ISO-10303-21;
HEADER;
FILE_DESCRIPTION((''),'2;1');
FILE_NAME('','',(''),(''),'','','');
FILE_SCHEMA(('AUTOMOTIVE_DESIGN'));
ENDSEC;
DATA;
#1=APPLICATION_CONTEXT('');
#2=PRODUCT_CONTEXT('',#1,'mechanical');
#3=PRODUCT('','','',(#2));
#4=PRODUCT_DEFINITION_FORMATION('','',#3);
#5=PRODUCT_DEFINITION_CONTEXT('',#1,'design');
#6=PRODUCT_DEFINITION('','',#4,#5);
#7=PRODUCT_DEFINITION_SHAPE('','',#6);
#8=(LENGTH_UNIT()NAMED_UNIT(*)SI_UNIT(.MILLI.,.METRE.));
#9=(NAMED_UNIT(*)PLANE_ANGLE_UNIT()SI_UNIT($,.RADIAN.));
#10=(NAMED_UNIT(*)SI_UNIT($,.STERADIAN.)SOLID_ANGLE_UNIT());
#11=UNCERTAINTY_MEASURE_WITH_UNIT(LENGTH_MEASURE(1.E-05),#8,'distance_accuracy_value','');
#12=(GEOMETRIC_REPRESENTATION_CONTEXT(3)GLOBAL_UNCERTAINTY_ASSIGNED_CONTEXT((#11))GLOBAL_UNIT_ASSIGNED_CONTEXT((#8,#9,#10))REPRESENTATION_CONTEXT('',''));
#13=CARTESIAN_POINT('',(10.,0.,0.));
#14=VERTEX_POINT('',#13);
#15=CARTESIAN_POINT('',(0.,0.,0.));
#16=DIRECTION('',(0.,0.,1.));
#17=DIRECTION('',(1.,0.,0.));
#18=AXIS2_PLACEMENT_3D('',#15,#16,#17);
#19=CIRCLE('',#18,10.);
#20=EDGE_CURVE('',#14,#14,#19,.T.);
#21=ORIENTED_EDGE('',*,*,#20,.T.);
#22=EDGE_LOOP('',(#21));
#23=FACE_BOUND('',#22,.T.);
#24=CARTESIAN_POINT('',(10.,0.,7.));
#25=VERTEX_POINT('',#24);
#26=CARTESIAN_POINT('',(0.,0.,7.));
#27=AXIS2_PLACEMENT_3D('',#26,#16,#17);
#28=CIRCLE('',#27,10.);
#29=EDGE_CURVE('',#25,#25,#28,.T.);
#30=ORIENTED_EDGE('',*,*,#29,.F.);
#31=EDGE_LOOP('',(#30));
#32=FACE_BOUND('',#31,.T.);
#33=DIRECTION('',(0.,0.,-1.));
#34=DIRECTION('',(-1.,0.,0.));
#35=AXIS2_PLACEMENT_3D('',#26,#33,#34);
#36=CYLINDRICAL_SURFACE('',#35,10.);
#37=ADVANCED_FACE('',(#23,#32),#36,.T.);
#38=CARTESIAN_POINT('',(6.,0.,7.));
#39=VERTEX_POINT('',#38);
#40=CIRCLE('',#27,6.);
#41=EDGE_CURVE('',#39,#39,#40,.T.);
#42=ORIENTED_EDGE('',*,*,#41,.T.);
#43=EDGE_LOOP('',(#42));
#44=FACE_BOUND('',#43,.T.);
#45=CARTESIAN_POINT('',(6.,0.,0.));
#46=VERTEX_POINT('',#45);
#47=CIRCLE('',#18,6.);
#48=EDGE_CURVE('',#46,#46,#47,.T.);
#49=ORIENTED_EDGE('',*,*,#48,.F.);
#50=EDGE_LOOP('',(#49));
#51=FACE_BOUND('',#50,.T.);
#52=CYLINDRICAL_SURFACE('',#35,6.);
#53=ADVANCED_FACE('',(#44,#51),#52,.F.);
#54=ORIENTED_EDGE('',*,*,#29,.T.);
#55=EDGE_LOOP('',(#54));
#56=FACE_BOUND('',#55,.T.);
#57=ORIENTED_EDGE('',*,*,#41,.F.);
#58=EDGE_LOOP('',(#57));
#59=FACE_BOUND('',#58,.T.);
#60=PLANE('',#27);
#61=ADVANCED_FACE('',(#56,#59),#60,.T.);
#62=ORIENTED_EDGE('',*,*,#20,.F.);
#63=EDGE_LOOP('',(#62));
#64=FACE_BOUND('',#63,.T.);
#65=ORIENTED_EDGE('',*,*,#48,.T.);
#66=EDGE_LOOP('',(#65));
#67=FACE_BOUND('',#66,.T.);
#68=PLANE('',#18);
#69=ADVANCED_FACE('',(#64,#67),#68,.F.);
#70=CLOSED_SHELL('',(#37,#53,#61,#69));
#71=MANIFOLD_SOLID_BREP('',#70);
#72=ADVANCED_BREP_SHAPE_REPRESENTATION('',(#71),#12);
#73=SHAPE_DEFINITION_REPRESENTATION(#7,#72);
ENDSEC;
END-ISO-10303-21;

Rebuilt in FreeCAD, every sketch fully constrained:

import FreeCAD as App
import Part
import Sketcher
from FreeCAD import Vector

doc = App.newDocument("Part")
params = doc.addObject("Spreadsheet::Sheet", "Params")
for row, (alias, value) in enumerate([
    ("sketch1_diameter", "20 mm"),
    ("sketch1_diameter2", "12 mm"),
    ("pad1_length", "7 mm"),
], start=1):
    params.set(f"A{row}", alias)
    params.set(f"B{row}", "=" + value)
    params.setAlias(f"B{row}", alias)

body = doc.addObject("PartDesign::Body", "Body")

# Sketch on XY plane
sketch1 = doc.addObject("Sketcher::SketchObject", "Sketch")
body.addObject(sketch1)
sketch1.AttachmentSupport = (doc.XY_Plane, [""])
sketch1.MapMode = "FlatFace"
sketch1.addGeometry([
    Part.Circle(Vector(0, 0, 0), Vector(0, 0, 1), 10),
    Part.Circle(Vector(0, 0, 0), Vector(0, 0, 1), 6),
], False)
sketch1.addConstraint([
    Sketcher.Constraint("Coincident", 0, 3, -1, 1),
    Sketcher.Constraint("Coincident", 1, 3, -1, 1),
    Sketcher.Constraint("Diameter", 0, 20.0),
    Sketcher.Constraint("Diameter", 1, 12.0),
])
sketch1.setExpression("Constraints[2]", "Params.sketch1_diameter")
sketch1.setExpression("Constraints[3]", "Params.sketch1_diameter2")
pad1 = doc.addObject("PartDesign::Pad", "Pad")
body.addObject(pad1)
pad1.Profile = sketch1
pad1.setExpression("Length", "Params.pad1_length")

doc.recompute()
